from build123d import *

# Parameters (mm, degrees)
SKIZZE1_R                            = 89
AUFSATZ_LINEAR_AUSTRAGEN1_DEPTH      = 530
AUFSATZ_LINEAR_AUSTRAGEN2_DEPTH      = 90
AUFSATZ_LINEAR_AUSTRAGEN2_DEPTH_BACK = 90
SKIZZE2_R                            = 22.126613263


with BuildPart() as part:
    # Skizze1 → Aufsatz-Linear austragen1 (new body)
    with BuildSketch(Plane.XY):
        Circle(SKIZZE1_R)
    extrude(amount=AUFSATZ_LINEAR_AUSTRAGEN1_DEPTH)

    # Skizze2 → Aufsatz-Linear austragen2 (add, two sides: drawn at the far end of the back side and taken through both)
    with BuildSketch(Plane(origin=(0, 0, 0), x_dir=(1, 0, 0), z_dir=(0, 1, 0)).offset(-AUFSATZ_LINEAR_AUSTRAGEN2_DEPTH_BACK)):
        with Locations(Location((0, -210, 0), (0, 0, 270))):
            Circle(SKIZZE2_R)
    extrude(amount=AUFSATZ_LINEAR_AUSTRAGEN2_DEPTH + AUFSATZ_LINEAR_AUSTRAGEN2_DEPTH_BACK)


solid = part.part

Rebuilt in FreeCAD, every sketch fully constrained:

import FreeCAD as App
import Part
import Sketcher

doc = App.newDocument("Part")
params = doc.addObject("Spreadsheet::Sheet", "Params")
for row, (alias, value) in enumerate([
    ("sketch1_diameter", "178 mm"),
    ("pad1_length", "530 mm"),
    ("pad2_length", "90 mm"),
    ("pad2_length2", "90 mm"),
], start=1):
    params.set(f"A{row}", alias)
    params.set(f"B{row}", "=" + value)
    params.setAlias(f"B{row}", alias)

body = doc.addObject("PartDesign::Body", "Body")

sketch1 = body.newObject("Sketcher::SketchObject", "Sketch")
sketch1.AttachmentSupport = (doc.getObject("XY_Plane"), [""])
sketch1.MapMode = "FlatFace"
sketch1.addGeometry(Part.Circle(App.Vector(0, 0, 0), App.Vector(0, 0, 1), 89), False)
sketch1.addConstraint([
    Sketcher.Constraint("Coincident", 0, 3, -1, 1),
    Sketcher.Constraint("Diameter", 0, 178.0),
])
sketch1.setExpression("Constraints[1]", "Params.sketch1_diameter")
pad1 = body.newObject("PartDesign::Pad", "Pad")
pad1.Profile = sketch1
pad1.setExpression("Length", "Params.pad1_length")

sketch2 = body.newObject("Sketcher::SketchObject", "Sketch001")
sketch2.AttachmentSupport = (doc.getObject("XZ_Plane"), [""])
sketch2.MapMode = "FlatFace"
sketch2.addGeometry(Part.Circle(App.Vector(0, 210, 0), App.Vector(0, 0, 1), 22), False)
sketch2.addConstraint([
    Sketcher.Constraint("PointOnObject", 0, 3, -2),
    Sketcher.Constraint("DistanceY", -1, 1, 0, 3, 210.0),
    Sketcher.Constraint("Diameter", 0, 44.253227),
])
pad2 = body.newObject("PartDesign::Pad", "Pad001")
pad2.Profile = sketch2
pad2.Type = "TwoLengths"
pad2.setExpression("Length", "Params.pad2_length")
pad2.setExpression("Length2", "Params.pad2_length2")
pad2.Reversed = True

doc.recompute()
